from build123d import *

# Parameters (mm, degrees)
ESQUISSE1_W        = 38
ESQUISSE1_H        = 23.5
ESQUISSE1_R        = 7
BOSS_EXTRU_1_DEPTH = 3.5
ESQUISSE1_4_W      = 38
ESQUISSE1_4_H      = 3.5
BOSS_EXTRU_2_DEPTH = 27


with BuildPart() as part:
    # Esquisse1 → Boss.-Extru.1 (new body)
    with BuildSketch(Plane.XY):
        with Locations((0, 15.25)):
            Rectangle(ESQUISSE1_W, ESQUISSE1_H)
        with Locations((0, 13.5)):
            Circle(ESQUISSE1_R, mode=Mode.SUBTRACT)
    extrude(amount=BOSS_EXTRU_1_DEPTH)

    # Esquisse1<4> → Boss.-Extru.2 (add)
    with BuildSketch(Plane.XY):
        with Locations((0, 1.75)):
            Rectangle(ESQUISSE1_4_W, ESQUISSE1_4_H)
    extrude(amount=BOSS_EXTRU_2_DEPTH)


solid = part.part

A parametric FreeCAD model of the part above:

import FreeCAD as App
import Part
import Sketcher
from FreeCAD import Vector
Q = App.Units.Quantity

doc = App.newDocument("Part")
body = doc.addObject("PartDesign::Body", "Body")

# Sketch on XY plane
sketch1 = doc.addObject("Sketcher::SketchObject", "Sketch")
body.addObject(sketch1)
sketch1.AttachmentSupport = (doc.XY_Plane, [""])
sketch1.MapMode = "FlatFace"
sketch1.addGeometry(Part.LineSegment(Vector(-19, 27, 0), Vector(-19, 3.5, 0)), False)
sketch1.addGeometry(Part.LineSegment(Vector(-19, 3.5, 0), Vector(19, 3.5, 0)), False)
sketch1.addGeometry(Part.LineSegment(Vector(19, 3.5, 0), Vector(19, 27, 0)), False)
sketch1.addGeometry(Part.LineSegment(Vector(19, 27, 0), Vector(-19, 27, 0)), False)
sketch1.addGeometry(Part.Circle(Vector(0, 13.5, 0), Vector(0, 0, 1), 7), False)
sketch1.addConstraint(Sketcher.Constraint("Coincident", 0, 2, 1, 1))
sketch1.addConstraint(Sketcher.Constraint("Coincident", 1, 2, 2, 1))
sketch1.addConstraint(Sketcher.Constraint("Coincident", 2, 2, 3, 1))
sketch1.addConstraint(Sketcher.Constraint("Coincident", 3, 2, 0, 1))
sketch1.addConstraint(Sketcher.Constraint("Vertical", 0))
sketch1.addConstraint(Sketcher.Constraint("Horizontal", 1))
sketch1.addConstraint(Sketcher.Constraint("Vertical", 2))
sketch1.addConstraint(Sketcher.Constraint("Horizontal", 3))
sketch1.addConstraint(Sketcher.Constraint("PointOnObject", 4, 3, -2))
sketch1.addConstraint(Sketcher.Constraint("Diameter", 4, Q("14 mm")))
sketch1.addConstraint(Sketcher.Constraint("DistanceX", 1, 1, 1, 2, Q("38 mm")))
sketch1.addConstraint(Sketcher.Constraint("DistanceY", 0, 2, 0, 1, Q("23.5 mm")))
sketch1.addConstraint(Sketcher.Constraint("DistanceX", 0, 2, -1, 1, Q("19 mm")))
sketch1.addConstraint(Sketcher.Constraint("DistanceY", -1, 1, 2, 2, Q("27 mm")))
sketch1.addConstraint(Sketcher.Constraint("DistanceY", 0, 2, 4, 3, Q("10 mm")))
pad1 = doc.addObject("PartDesign::Pad", "Pad")
body.addObject(pad1)
pad1.Profile = sketch1
pad1.Length = 3.5

# Sketch on XY plane
sketch2 = doc.addObject("Sketcher::SketchObject", "Sketch001")
body.addObject(sketch2)
sketch2.AttachmentSupport = (doc.XY_Plane, [""])
sketch2.MapMode = "FlatFace"
sketch2.addGeometry(Part.LineSegment(Vector(-19, 3.5, 0), Vector(-19, 0, 0)), False)
sketch2.addGeometry(Part.LineSegment(Vector(-19, 0, 0), Vector(19, 0, 0)), False)
sketch2.addGeometry(Part.LineSegment(Vector(19, 0, 0), Vector(19, 3.5, 0)), False)
sketch2.addGeometry(Part.LineSegment(Vector(19, 3.5, 0), Vector(-19, 3.5, 0)), False)
sketch2.addConstraint(Sketcher.Constraint("Coincident", 0, 2, 1, 1))
sketch2.addConstraint(Sketcher.Constraint("Coincident", 1, 2, 2, 1))
sketch2.addConstraint(Sketcher.Constraint("Coincident", 2, 2, 3, 1))
sketch2.addConstraint(Sketcher.Constraint("Coincident", 3, 2, 0, 1))
sketch2.addConstraint(Sketcher.Constraint("Vertical", 0))
sketch2.addConstraint(Sketcher.Constraint("Horizontal", 1))
sketch2.addConstraint(Sketcher.Constraint("Vertical", 2))
sketch2.addConstraint(Sketcher.Constraint("Horizontal", 3))
sketch2.addConstraint(Sketcher.Constraint("Symmetric", 0, 2, 1, 2, -1, 1))
sketch2.addConstraint(Sketcher.Constraint("DistanceX", 1, 1, 1, 2, Q("38 mm")))
sketch2.addConstraint(Sketcher.Constraint("DistanceY", 0, 2, 0, 1, Q("3.5 mm")))
pad2 = doc.addObject("PartDesign::Pad", "Pad001")
body.addObject(pad2)
pad2.Profile = sketch2
pad2.Length = 27

doc.recompute()
